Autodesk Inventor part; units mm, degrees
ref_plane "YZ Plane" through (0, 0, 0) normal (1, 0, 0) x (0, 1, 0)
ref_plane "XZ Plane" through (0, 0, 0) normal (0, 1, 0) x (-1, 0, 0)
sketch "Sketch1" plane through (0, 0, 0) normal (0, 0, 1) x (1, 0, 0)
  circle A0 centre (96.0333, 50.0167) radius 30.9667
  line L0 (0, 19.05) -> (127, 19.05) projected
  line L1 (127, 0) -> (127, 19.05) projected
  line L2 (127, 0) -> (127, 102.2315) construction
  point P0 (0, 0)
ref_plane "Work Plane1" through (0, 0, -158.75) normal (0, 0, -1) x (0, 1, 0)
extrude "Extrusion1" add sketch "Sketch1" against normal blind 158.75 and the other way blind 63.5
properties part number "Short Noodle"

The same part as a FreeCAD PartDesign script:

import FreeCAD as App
import Part
import Sketcher
Q = App.Units.Quantity

doc = App.newDocument("Part")
params = doc.addObject("Spreadsheet::Sheet", "Params")
for row, (alias, value) in enumerate([
    ("pad1_length", "6.25 in"),
    ("pad1_length2", "2.5 in"),
], start=1):
    params.set(f"A{row}", alias)
    params.set(f"B{row}", "=" + value)
    params.setAlias(f"B{row}", alias)

body = doc.addObject("PartDesign::Body", "Body")

# Sketch on XY plane
sketch1 = body.newObject("Sketcher::SketchObject", "Sketch")
sketch1.AttachmentSupport = (doc.getObject("XY_Plane"), [""])
sketch1.MapMode = "FlatFace"
sketch1.addGeometry(Part.Circle(App.Vector(96, 50, 0), App.Vector(0, 0, 1), 31), False)
sketch1.addConstraint([
    Sketcher.Constraint("Diameter", 0, Q("61.9334 mm")),
    Sketcher.Constraint("DistanceX", -1, 1, 0, 3, Q("96.0333 mm")),
    Sketcher.Constraint("DistanceY", -1, 1, 0, 3, Q("50.0167 mm")),
])
pad1 = body.newObject("PartDesign::Pad", "Pad")
pad1.Profile = sketch1
pad1.Type = "TwoLengths"
pad1.setExpression("Length", "Params.pad1_length")
pad1.setExpression("Length2", "Params.pad1_length2")
pad1.Reversed = True

doc.recompute()
